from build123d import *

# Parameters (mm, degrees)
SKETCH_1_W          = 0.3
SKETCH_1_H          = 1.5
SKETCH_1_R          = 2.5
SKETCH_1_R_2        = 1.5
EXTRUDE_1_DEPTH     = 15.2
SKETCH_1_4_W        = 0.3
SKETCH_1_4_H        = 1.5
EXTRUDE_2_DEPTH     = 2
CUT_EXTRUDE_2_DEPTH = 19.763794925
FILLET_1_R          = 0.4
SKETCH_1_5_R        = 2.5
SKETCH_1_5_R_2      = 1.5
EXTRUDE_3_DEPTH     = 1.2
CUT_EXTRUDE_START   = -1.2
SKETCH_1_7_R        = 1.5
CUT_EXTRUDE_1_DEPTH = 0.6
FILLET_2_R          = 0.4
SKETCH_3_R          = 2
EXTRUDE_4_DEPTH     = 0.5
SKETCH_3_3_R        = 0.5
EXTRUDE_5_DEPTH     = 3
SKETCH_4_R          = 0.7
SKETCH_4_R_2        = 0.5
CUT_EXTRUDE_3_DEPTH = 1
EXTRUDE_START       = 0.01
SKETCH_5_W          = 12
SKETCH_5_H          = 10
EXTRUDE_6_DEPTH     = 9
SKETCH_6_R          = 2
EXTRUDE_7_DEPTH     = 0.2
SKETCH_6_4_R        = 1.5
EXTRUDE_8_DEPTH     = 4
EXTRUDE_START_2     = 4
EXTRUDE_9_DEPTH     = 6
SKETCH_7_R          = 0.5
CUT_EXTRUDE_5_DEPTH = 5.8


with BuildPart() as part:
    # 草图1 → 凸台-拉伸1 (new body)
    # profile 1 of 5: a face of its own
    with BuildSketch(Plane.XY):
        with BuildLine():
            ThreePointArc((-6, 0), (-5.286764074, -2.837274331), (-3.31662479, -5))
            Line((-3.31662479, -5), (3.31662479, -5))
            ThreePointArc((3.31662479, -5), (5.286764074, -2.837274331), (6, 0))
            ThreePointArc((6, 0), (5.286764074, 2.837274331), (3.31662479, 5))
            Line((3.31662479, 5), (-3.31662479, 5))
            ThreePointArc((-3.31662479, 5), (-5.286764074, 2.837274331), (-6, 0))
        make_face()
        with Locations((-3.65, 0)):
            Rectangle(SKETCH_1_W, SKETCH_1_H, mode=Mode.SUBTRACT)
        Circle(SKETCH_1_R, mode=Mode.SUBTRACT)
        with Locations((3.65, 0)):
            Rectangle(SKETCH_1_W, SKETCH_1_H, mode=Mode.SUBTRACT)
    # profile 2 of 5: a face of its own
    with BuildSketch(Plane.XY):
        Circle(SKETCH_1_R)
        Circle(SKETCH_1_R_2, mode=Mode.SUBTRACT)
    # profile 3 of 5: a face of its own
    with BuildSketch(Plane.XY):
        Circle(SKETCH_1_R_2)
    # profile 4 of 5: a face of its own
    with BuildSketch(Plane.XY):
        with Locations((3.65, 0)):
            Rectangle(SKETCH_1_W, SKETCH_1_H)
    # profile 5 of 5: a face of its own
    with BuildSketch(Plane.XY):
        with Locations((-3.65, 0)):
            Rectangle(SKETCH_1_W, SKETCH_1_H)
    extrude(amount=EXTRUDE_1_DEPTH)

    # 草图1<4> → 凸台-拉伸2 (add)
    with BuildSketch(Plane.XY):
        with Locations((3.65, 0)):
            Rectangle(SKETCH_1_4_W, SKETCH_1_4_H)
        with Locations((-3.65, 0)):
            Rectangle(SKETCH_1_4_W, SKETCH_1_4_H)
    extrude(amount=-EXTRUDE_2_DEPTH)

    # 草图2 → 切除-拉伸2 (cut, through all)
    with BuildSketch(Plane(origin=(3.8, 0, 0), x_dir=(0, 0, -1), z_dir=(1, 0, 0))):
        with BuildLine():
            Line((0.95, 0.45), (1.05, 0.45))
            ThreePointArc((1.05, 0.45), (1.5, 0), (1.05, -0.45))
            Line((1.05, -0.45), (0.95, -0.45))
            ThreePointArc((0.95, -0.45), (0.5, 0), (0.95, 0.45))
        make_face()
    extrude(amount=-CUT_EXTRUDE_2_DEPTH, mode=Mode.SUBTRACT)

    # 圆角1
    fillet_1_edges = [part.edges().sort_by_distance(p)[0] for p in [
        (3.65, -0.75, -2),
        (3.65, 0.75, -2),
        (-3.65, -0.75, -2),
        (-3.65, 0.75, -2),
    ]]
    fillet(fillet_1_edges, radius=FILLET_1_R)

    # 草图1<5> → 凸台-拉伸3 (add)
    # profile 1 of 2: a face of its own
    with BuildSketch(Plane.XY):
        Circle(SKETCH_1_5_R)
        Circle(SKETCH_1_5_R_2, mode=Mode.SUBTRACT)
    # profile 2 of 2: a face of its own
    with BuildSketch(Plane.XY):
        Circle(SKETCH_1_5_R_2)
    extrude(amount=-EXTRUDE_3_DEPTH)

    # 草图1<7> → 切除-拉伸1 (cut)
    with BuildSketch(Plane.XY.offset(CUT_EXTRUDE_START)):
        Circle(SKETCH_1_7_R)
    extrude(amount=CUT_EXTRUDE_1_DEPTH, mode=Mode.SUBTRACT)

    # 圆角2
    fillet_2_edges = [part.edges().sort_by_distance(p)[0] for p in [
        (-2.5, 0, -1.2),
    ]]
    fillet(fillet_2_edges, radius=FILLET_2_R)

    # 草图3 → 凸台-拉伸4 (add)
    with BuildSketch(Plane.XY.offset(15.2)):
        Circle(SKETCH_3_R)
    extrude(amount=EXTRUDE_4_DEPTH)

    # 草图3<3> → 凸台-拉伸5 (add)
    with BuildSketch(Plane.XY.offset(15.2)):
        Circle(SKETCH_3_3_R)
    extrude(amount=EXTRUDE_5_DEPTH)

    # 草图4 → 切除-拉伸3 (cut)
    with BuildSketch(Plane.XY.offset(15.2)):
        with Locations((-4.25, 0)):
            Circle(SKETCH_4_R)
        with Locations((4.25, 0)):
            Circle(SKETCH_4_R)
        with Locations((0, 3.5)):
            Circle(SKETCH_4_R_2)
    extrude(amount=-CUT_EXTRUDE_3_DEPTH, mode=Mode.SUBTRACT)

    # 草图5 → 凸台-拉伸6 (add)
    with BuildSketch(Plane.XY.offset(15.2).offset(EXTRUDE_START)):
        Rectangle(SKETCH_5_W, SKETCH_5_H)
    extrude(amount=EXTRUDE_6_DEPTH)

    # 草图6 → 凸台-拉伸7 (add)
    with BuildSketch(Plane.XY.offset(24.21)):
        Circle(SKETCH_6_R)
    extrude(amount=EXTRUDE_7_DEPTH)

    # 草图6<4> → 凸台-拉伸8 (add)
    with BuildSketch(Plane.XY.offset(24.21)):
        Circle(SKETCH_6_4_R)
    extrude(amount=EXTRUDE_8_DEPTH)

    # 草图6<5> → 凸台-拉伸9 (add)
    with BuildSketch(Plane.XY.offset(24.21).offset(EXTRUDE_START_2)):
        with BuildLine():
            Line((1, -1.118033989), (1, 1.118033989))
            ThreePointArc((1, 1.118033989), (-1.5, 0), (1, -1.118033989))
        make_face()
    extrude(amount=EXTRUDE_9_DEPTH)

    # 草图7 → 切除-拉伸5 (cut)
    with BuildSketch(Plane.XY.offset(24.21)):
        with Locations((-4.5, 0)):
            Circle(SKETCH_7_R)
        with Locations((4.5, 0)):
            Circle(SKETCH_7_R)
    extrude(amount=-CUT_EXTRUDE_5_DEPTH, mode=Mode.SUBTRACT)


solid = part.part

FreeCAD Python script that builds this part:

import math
import FreeCAD as App
import Part
import Sketcher

V = App.Vector
Q = App.Units.Quantity


def edges_at(feature, points):
    """Names of the edges that pass closest to the given points."""
    edges = feature.Shape.Edges
    near = lambda p: min(range(len(edges)), key=lambda i: edges[i].distToShape(Part.Vertex(*p))[0])
    return sorted({f"Edge{near(p) + 1}" for p in points})

doc = App.newDocument("Part")
body = doc.addObject("PartDesign::Body", "Body")

sketch1 = body.newObject("Sketcher::SketchObject", "Sketch")
sketch1.AttachmentSupport = (doc.getObject("XY_Plane"), [""])
sketch1.MapMode = "FlatFace"
sketch1.addGeometry(Part.ArcOfCircle(Part.Circle(V(0, 0, 0), V(0, 0, 1), 6), math.radians(180), math.radians(236)), False)
sketch1.addGeometry(Part.LineSegment(V(-3, -5, 0), V(3, -5, 0)), False)
sketch1.addGeometry(Part.ArcOfCircle(Part.Circle(V(0, 0, 0), V(0, 0, 1), 6), math.radians(-56), math.radians(0)), False)
sketch1.addGeometry(Part.ArcOfCircle(Part.Circle(V(0, 0, 0), V(0, 0, 1), 6), math.radians(0), math.radians(56)), False)
sketch1.addGeometry(Part.LineSegment(V(3, 5, 0), V(-3, 5, 0)), False)
sketch1.addGeometry(Part.ArcOfCircle(Part.Circle(V(0, 0, 0), V(0, 0, 1), 6), math.radians(124), math.radians(180)), False)
sketch1.addConstraint(Sketcher.Constraint("Coincident", 0, 2, 1, 1))
sketch1.addConstraint(Sketcher.Constraint("Coincident", 1, 2, 2, 1))
sketch1.addConstraint(Sketcher.Constraint("Tangent", 2, 2, 3, 1))
sketch1.addConstraint(Sketcher.Constraint("Coincident", 3, 2, 4, 1))
sketch1.addConstraint(Sketcher.Constraint("Coincident", 4, 2, 5, 1))
sketch1.addConstraint(Sketcher.Constraint("Tangent", 5, 2, 0, 1))
sketch1.addConstraint(Sketcher.Constraint("Horizontal", 1))
sketch1.addConstraint(Sketcher.Constraint("Horizontal", 4))
sketch1.addConstraint(Sketcher.Constraint("Coincident", 0, 3, -1, 1))
sketch1.addConstraint(Sketcher.Constraint("Coincident", 2, 3, -1, 1))
sketch1.addConstraint(Sketcher.Constraint("Equal", 0, 2))
sketch1.addConstraint(Sketcher.Constraint("Equal", 2, 3))
sketch1.addConstraint(Sketcher.Constraint("Equal", 3, 5))
sketch1.addConstraint(Sketcher.Constraint("PointOnObject", 2, 2, -1))
sketch1.addConstraint(Sketcher.Constraint("PointOnObject", 5, 2, -1))
sketch1.addConstraint(Sketcher.Constraint("Vertical", 1, 2, 3, 2))
sketch1.addConstraint(Sketcher.Constraint("Radius", 0, Q("6 mm")))
sketch1.addConstraint(Sketcher.Constraint("DistanceY", 0, 2, -1, 1, Q("5 mm")))
pad1 = body.newObject("PartDesign::Pad", "Pad")
pad1.Profile = sketch1
pad1.Length = 15.2

sketch2 = body.newObject("Sketcher::SketchObject", "Sketch001")
sketch2.AttachmentSupport = (doc.getObject("XY_Plane"), [""])
sketch2.MapMode = "FlatFace"
sketch2.addGeometry(Part.LineSegment(V(3.5, 0.75, 0), V(3.5, -0.75, 0)), False)
sketch2.addGeometry(Part.LineSegment(V(3.5, -0.75, 0), V(3.8, -0.75, 0)), False)
sketch2.addGeometry(Part.LineSegment(V(3.8, -0.75, 0), V(3.8, 0.75, 0)), False)
sketch2.addGeometry(Part.LineSegment(V(3.8, 0.75, 0), V(3.5, 0.75, 0)), False)
sketch2.addGeometry(Part.LineSegment(V(-3.8, 0.75, 0), V(-3.8, -0.75, 0)), False)
sketch2.addGeometry(Part.LineSegment(V(-3.8, -0.75, 0), V(-3.5, -0.75, 0)), False)
sketch2.addGeometry(Part.LineSegment(V(-3.5, -0.75, 0), V(-3.5, 0.75, 0)), False)
sketch2.addGeometry(Part.LineSegment(V(-3.5, 0.75, 0), V(-3.8, 0.75, 0)), False)
sketch2.addConstraint(Sketcher.Constraint("Coincident", 0, 2, 1, 1))
sketch2.addConstraint(Sketcher.Constraint("Coincident", 1, 2, 2, 1))
sketch2.addConstraint(Sketcher.Constraint("Coincident", 2, 2, 3, 1))
sketch2.addConstraint(Sketcher.Constraint("Coincident", 3, 2, 0, 1))
sketch2.addConstraint(Sketcher.Constraint("Coincident", 4, 2, 5, 1))
sketch2.addConstraint(Sketcher.Constraint("Coincident", 5, 2, 6, 1))
sketch2.addConstraint(Sketcher.Constraint("Coincident", 6, 2, 7, 1))
sketch2.addConstraint(Sketcher.Constraint("Coincident", 7, 2, 4, 1))
sketch2.addConstraint(Sketcher.Constraint("Vertical", 0))
sketch2.addConstraint(Sketcher.Constraint("Horizontal", 1))
sketch2.addConstraint(Sketcher.Constraint("Vertical", 2))
sketch2.addConstraint(Sketcher.Constraint("Horizontal", 3))
sketch2.addConstraint(Sketcher.Constraint("Vertical", 4))
sketch2.addConstraint(Sketcher.Constraint("Horizontal", 5))
sketch2.addConstraint(Sketcher.Constraint("Vertical", 6))
sketch2.addConstraint(Sketcher.Constraint("Horizontal", 7))
sketch2.addConstraint(Sketcher.Constraint("Symmetric", 2, 2, 4, 2, -1, 1))
sketch2.addConstraint(Sketcher.Constraint("Symmetric", 0, 2, 6, 2, -1, 1))
sketch2.addConstraint(Sketcher.Constraint("Horizontal", 1, 2, 4, 2))
sketch2.addConstraint(Sketcher.Constraint("DistanceX", 1, 1, 1, 2, Q("0.3 mm")))
sketch2.addConstraint(Sketcher.Constraint("DistanceY", 0, 2, 0, 1, Q("1.5 mm")))
sketch2.addConstraint(Sketcher.Constraint("DistanceX", 5, 2, 0, 2, Q("7 mm")))
pad2 = body.newObject("PartDesign::Pad", "Pad001")
pad2.Profile = sketch2
pad2.Length = 2
pad2.Reversed = True

sketch3 = body.newObject("Sketcher::SketchObject", "Sketch002")
sketch3.AttachmentSupport = (doc.getObject("YZ_Plane"), [""])
sketch3.MapMode = "FlatFace"
sketch3.AttachmentOffset = App.Placement(V(0, 0, 3.8), App.Rotation())
sketch3.addGeometry(Part.LineSegment(V(0.45, -1.05, 0), V(0.45, -0.95, 0)), False)
sketch3.addGeometry(Part.ArcOfCircle(Part.Circle(V(0, -0.95, 0), V(0, 0, 1), 0.45), math.radians(0), math.radians(180)), False)
sketch3.addGeometry(Part.LineSegment(V(-0.45, -0.95, 0), V(-0.45, -1.05, 0)), False)
sketch3.addGeometry(Part.ArcOfCircle(Part.Circle(V(0, -1.05, 0), V(0, 0, 1), 0.45), math.radians(180), math.radians(360)), False)
sketch3.addConstraint(Sketcher.Constraint("Tangent", 0, 2, 1, 1))
sketch3.addConstraint(Sketcher.Constraint("Tangent", 1, 2, 2, 1))
sketch3.addConstraint(Sketcher.Constraint("Tangent", 2, 2, 3, 1))
sketch3.addConstraint(Sketcher.Constraint("Tangent", 3, 2, 0, 1))
sketch3.addConstraint(Sketcher.Constraint("Vertical", 0))
sketch3.addConstraint(Sketcher.Constraint("Vertical", 2))
sketch3.addConstraint(Sketcher.Constraint("PointOnObject", 1, 3, -2))
sketch3.addConstraint(Sketcher.Constraint("Radius", 1, Q("0.45 mm")))
sketch3.addConstraint(Sketcher.Constraint("DistanceY", 0, 1, 0, 2, Q("0.1 mm")))
sketch3.addConstraint(Sketcher.Constraint("DistanceY", 1, 3, -1, 1, Q("0.95 mm")))
pocket1 = body.newObject("PartDesign::Pocket", "Pocket")
pocket1.Profile = sketch3
pocket1.Type = "ThroughAll"
doc.recompute()

fillet = body.newObject("PartDesign::Fillet", "Fillet")
fillet.Base = (pocket1, edges_at(pocket1, [
    (3.65, -0.75, -2),
    (3.65, 0.75, -2),
    (-3.65, -0.75, -2),
    (-3.65, 0.75, -2),
]))
fillet.Radius = 0.4

sketch4 = body.newObject("Sketcher::SketchObject", "Sketch003")
sketch4.AttachmentSupport = (doc.getObject("XY_Plane"), [""])
sketch4.MapMode = "FlatFace"
sketch4.addGeometry(Part.Circle(V(0, 0, 0), V(0, 0, 1), 2.5), False)
sketch4.addConstraint(Sketcher.Constraint("Coincident", 0, 3, -1, 1))
sketch4.addConstraint(Sketcher.Constraint("Diameter", 0, Q("5 mm")))
pad3 = body.newObject("PartDesign::Pad", "Pad002")
pad3.Profile = sketch4
pad3.Length = 1.2
pad3.Reversed = True

sketch5 = body.newObject("Sketcher::SketchObject", "Sketch004")
sketch5.AttachmentSupport = (doc.getObject("XY_Plane"), [""])
sketch5.MapMode = "FlatFace"
sketch5.AttachmentOffset = App.Placement(V(0, 0, -1.2), App.Rotation())
sketch5.addGeometry(Part.Circle(V(0, 0, 0), V(0, 0, 1), 1.5), False)
sketch5.addConstraint(Sketcher.Constraint("Coincident", 0, 3, -1, 1))
sketch5.addConstraint(Sketcher.Constraint("Diameter", 0, Q("3 mm")))
pocket2 = body.newObject("PartDesign::Pocket", "Pocket001")
pocket2.Profile = sketch5
pocket2.Length = 0.6
pocket2.Reversed = True
doc.recompute()

fillet2 = body.newObject("PartDesign::Fillet", "Fillet001")
fillet2.Base = (pocket2, edges_at(pocket2, [(-2.5, 0, -1.2)]))
fillet2.Radius = 0.4

sketch6 = body.newObject("Sketcher::SketchObject", "Sketch005")
sketch6.AttachmentSupport = (doc.getObject("XY_Plane"), [""])
sketch6.MapMode = "FlatFace"
sketch6.AttachmentOffset = App.Placement(V(0, 0, 15.2), App.Rotation())
sketch6.addGeometry(Part.Circle(V(0, 0, 0), V(0, 0, 1), 2), False)
sketch6.addConstraint(Sketcher.Constraint("Coincident", 0, 3, -1, 1))
sketch6.addConstraint(Sketcher.Constraint("Diameter", 0, Q("4 mm")))
pad4 = body.newObject("PartDesign::Pad", "Pad003")
pad4.Profile = sketch6
pad4.Length = 0.5

sketch7 = body.newObject("Sketcher::SketchObject", "Sketch006")
sketch7.AttachmentSupport = (doc.getObject("XY_Plane"), [""])
sketch7.MapMode = "FlatFace"
sketch7.AttachmentOffset = App.Placement(V(0, 0, 15.2), App.Rotation())
sketch7.addGeometry(Part.Circle(V(0, 0, 0), V(0, 0, 1), 0.5), False)
sketch7.addConstraint(Sketcher.Constraint("Coincident", 0, 3, -1, 1))
sketch7.addConstraint(Sketcher.Constraint("Diameter", 0, Q("1 mm")))
pad5 = body.newObject("PartDesign::Pad", "Pad004")
pad5.Profile = sketch7
pad5.Length = 3

sketch8 = body.newObject("Sketcher::SketchObject", "Sketch007")
sketch8.AttachmentSupport = (doc.getObject("XY_Plane"), [""])
sketch8.MapMode = "FlatFace"
sketch8.AttachmentOffset = App.Placement(V(0, 0, 15.2), App.Rotation())
sketch8.addGeometry(Part.Circle(V(-4.2, 0, 0), V(0, 0, 1), 0.7), False)
sketch8.addGeometry(Part.Circle(V(4.2, 0, 0), V(0, 0, 1), 0.7), False)
sketch8.addGeometry(Part.Circle(V(0, 3.5, 0), V(0, 0, 1), 0.5), False)
sketch8.addConstraint(Sketcher.Constraint("Equal", 0, 1))
sketch8.addConstraint(Sketcher.Constraint("Symmetric", 0, 3, 1, 3, -1, 1))
sketch8.addConstraint(Sketcher.Constraint("PointOnObject", 0, 3, -1))
sketch8.addConstraint(Sketcher.Constraint("PointOnObject", 2, 3, -2))
sketch8.addConstraint(Sketcher.Constraint("Diameter", 2, Q("1 mm")))
sketch8.addConstraint(Sketcher.Constraint("Diameter", 0, Q("1.4 mm")))
sketch8.addConstraint(Sketcher.Constraint("DistanceY", -1, 1, 2, 3, Q("3.5 mm")))
sketch8.addConstraint(Sketcher.Constraint("DistanceX", 0, 3, 1, 3, Q("8.5 mm")))
pocket3 = body.newObject("PartDesign::Pocket", "Pocket002")
pocket3.Profile = sketch8
pocket3.Length = 1

sketch9 = body.newObject("Sketcher::SketchObject", "Sketch008")
sketch9.AttachmentSupport = (doc.getObject("XY_Plane"), [""])
sketch9.MapMode = "FlatFace"
sketch9.AttachmentOffset = App.Placement(V(0, 0, 15.21), App.Rotation())
sketch9.addGeometry(Part.LineSegment(V(-6, 5, 0), V(-6, -5, 0)), False)
sketch9.addGeometry(Part.LineSegment(V(-6, -5, 0), V(6, -5, 0)), False)
sketch9.addGeometry(Part.LineSegment(V(6, -5, 0), V(6, 5, 0)), False)
sketch9.addGeometry(Part.LineSegment(V(6, 5, 0), V(-6, 5, 0)), False)
sketch9.addConstraint(Sketcher.Constraint("Coincident", 0, 2, 1, 1))
sketch9.addConstraint(Sketcher.Constraint("Coincident", 1, 2, 2, 1))
sketch9.addConstraint(Sketcher.Constraint("Coincident", 2, 2, 3, 1))
sketch9.addConstraint(Sketcher.Constraint("Coincident", 3, 2, 0, 1))
sketch9.addConstraint(Sketcher.Constraint("Vertical", 0))
sketch9.addConstraint(Sketcher.Constraint("Horizontal", 1))
sketch9.addConstraint(Sketcher.Constraint("Vertical", 2))
sketch9.addConstraint(Sketcher.Constraint("Horizontal", 3))
sketch9.addConstraint(Sketcher.Constraint("Symmetric", 0, 2, 2, 2, -1, 1))
sketch9.addConstraint(Sketcher.Constraint("DistanceX", 1, 1, 1, 2, Q("12 mm")))
sketch9.addConstraint(Sketcher.Constraint("DistanceY", 0, 2, 0, 1, Q("10 mm")))
pad6 = body.newObject("PartDesign::Pad", "Pad005")
pad6.Profile = sketch9
pad6.Length = 9

sketch10 = body.newObject("Sketcher::SketchObject", "Sketch009")
sketch10.AttachmentSupport = (doc.getObject("XY_Plane"), [""])
sketch10.MapMode = "FlatFace"
sketch10.AttachmentOffset = App.Placement(V(0, 0, 24.21), App.Rotation())
sketch10.addGeometry(Part.Circle(V(0, 0, 0), V(0, 0, 1), 2), False)
sketch10.addConstraint(Sketcher.Constraint("Coincident", 0, 3, -1, 1))
sketch10.addConstraint(Sketcher.Constraint("Diameter", 0, Q("4 mm")))
pad7 = body.newObject("PartDesign::Pad", "Pad006")
pad7.Profile = sketch10
pad7.Length = 0.2

sketch11 = body.newObject("Sketcher::SketchObject", "Sketch010")
sketch11.AttachmentSupport = (doc.getObject("XY_Plane"), [""])
sketch11.MapMode = "FlatFace"
sketch11.AttachmentOffset = App.Placement(V(0, 0, 24.21), App.Rotation())
sketch11.addGeometry(Part.Circle(V(0, 0, 0), V(0, 0, 1), 1.5), False)
sketch11.addConstraint(Sketcher.Constraint("Coincident", 0, 3, -1, 1))
sketch11.addConstraint(Sketcher.Constraint("Diameter", 0, Q("3 mm")))
pad8 = body.newObject("PartDesign::Pad", "Pad007")
pad8.Profile = sketch11
pad8.Length = 4

sketch12 = body.newObject("Sketcher::SketchObject", "Sketch011")
sketch12.AttachmentSupport = (doc.getObject("XY_Plane"), [""])
sketch12.MapMode = "FlatFace"
sketch12.AttachmentOffset = App.Placement(V(0, 0, 28.21), App.Rotation())
sketch12.addGeometry(Part.LineSegment(V(1, -1.1, 0), V(1, 1.1, 0)), False)
sketch12.addGeometry(Part.ArcOfCircle(Part.Circle(V(0, 0, 0), V(0, 0, 1), 1.5), math.radians(48), math.radians(312)), False)
sketch12.addConstraint(Sketcher.Constraint("Coincident", 0, 1, 1, 2))
sketch12.addConstraint(Sketcher.Constraint("Coincident", 1, 1, 0, 2))
sketch12.addConstraint(Sketcher.Constraint("Vertical", 0))
sketch12.addConstraint(Sketcher.Constraint("Coincident", 1, 3, -1, 1))
sketch12.addConstraint(Sketcher.Constraint("Radius", 1, Q("1.5 mm")))
sketch12.addConstraint(Sketcher.Constraint("DistanceX", -1, 1, 0, 1, Q("1 mm")))
pad9 = body.newObject("PartDesign::Pad", "Pad008")
pad9.Profile = sketch12
pad9.Length = 6

sketch13 = body.newObject("Sketcher::SketchObject", "Sketch012")
sketch13.AttachmentSupport = (doc.getObject("XY_Plane"), [""])
sketch13.MapMode = "FlatFace"
sketch13.AttachmentOffset = App.Placement(V(0, 0, 24.21), App.Rotation())
sketch13.addGeometry(Part.Circle(V(-4.5, 0, 0), V(0, 0, 1), 0.5), False)
sketch13.addGeometry(Part.Circle(V(4.5, 0, 0), V(0, 0, 1), 0.5), False)
sketch13.addConstraint(Sketcher.Constraint("Equal", 0, 1))
sketch13.addConstraint(Sketcher.Constraint("Symmetric", 0, 3, 1, 3, -1, 1))
sketch13.addConstraint(Sketcher.Constraint("PointOnObject", 0, 3, -1))
sketch13.addConstraint(Sketcher.Constraint("Diameter", 0, Q("1 mm")))
sketch13.addConstraint(Sketcher.Constraint("DistanceX", 0, 3, 1, 3, Q("9 mm")))
pocket4 = body.newObject("PartDesign::Pocket", "Pocket003")
pocket4.Profile = sketch13
pocket4.Length = 5.8

doc.recompute()
